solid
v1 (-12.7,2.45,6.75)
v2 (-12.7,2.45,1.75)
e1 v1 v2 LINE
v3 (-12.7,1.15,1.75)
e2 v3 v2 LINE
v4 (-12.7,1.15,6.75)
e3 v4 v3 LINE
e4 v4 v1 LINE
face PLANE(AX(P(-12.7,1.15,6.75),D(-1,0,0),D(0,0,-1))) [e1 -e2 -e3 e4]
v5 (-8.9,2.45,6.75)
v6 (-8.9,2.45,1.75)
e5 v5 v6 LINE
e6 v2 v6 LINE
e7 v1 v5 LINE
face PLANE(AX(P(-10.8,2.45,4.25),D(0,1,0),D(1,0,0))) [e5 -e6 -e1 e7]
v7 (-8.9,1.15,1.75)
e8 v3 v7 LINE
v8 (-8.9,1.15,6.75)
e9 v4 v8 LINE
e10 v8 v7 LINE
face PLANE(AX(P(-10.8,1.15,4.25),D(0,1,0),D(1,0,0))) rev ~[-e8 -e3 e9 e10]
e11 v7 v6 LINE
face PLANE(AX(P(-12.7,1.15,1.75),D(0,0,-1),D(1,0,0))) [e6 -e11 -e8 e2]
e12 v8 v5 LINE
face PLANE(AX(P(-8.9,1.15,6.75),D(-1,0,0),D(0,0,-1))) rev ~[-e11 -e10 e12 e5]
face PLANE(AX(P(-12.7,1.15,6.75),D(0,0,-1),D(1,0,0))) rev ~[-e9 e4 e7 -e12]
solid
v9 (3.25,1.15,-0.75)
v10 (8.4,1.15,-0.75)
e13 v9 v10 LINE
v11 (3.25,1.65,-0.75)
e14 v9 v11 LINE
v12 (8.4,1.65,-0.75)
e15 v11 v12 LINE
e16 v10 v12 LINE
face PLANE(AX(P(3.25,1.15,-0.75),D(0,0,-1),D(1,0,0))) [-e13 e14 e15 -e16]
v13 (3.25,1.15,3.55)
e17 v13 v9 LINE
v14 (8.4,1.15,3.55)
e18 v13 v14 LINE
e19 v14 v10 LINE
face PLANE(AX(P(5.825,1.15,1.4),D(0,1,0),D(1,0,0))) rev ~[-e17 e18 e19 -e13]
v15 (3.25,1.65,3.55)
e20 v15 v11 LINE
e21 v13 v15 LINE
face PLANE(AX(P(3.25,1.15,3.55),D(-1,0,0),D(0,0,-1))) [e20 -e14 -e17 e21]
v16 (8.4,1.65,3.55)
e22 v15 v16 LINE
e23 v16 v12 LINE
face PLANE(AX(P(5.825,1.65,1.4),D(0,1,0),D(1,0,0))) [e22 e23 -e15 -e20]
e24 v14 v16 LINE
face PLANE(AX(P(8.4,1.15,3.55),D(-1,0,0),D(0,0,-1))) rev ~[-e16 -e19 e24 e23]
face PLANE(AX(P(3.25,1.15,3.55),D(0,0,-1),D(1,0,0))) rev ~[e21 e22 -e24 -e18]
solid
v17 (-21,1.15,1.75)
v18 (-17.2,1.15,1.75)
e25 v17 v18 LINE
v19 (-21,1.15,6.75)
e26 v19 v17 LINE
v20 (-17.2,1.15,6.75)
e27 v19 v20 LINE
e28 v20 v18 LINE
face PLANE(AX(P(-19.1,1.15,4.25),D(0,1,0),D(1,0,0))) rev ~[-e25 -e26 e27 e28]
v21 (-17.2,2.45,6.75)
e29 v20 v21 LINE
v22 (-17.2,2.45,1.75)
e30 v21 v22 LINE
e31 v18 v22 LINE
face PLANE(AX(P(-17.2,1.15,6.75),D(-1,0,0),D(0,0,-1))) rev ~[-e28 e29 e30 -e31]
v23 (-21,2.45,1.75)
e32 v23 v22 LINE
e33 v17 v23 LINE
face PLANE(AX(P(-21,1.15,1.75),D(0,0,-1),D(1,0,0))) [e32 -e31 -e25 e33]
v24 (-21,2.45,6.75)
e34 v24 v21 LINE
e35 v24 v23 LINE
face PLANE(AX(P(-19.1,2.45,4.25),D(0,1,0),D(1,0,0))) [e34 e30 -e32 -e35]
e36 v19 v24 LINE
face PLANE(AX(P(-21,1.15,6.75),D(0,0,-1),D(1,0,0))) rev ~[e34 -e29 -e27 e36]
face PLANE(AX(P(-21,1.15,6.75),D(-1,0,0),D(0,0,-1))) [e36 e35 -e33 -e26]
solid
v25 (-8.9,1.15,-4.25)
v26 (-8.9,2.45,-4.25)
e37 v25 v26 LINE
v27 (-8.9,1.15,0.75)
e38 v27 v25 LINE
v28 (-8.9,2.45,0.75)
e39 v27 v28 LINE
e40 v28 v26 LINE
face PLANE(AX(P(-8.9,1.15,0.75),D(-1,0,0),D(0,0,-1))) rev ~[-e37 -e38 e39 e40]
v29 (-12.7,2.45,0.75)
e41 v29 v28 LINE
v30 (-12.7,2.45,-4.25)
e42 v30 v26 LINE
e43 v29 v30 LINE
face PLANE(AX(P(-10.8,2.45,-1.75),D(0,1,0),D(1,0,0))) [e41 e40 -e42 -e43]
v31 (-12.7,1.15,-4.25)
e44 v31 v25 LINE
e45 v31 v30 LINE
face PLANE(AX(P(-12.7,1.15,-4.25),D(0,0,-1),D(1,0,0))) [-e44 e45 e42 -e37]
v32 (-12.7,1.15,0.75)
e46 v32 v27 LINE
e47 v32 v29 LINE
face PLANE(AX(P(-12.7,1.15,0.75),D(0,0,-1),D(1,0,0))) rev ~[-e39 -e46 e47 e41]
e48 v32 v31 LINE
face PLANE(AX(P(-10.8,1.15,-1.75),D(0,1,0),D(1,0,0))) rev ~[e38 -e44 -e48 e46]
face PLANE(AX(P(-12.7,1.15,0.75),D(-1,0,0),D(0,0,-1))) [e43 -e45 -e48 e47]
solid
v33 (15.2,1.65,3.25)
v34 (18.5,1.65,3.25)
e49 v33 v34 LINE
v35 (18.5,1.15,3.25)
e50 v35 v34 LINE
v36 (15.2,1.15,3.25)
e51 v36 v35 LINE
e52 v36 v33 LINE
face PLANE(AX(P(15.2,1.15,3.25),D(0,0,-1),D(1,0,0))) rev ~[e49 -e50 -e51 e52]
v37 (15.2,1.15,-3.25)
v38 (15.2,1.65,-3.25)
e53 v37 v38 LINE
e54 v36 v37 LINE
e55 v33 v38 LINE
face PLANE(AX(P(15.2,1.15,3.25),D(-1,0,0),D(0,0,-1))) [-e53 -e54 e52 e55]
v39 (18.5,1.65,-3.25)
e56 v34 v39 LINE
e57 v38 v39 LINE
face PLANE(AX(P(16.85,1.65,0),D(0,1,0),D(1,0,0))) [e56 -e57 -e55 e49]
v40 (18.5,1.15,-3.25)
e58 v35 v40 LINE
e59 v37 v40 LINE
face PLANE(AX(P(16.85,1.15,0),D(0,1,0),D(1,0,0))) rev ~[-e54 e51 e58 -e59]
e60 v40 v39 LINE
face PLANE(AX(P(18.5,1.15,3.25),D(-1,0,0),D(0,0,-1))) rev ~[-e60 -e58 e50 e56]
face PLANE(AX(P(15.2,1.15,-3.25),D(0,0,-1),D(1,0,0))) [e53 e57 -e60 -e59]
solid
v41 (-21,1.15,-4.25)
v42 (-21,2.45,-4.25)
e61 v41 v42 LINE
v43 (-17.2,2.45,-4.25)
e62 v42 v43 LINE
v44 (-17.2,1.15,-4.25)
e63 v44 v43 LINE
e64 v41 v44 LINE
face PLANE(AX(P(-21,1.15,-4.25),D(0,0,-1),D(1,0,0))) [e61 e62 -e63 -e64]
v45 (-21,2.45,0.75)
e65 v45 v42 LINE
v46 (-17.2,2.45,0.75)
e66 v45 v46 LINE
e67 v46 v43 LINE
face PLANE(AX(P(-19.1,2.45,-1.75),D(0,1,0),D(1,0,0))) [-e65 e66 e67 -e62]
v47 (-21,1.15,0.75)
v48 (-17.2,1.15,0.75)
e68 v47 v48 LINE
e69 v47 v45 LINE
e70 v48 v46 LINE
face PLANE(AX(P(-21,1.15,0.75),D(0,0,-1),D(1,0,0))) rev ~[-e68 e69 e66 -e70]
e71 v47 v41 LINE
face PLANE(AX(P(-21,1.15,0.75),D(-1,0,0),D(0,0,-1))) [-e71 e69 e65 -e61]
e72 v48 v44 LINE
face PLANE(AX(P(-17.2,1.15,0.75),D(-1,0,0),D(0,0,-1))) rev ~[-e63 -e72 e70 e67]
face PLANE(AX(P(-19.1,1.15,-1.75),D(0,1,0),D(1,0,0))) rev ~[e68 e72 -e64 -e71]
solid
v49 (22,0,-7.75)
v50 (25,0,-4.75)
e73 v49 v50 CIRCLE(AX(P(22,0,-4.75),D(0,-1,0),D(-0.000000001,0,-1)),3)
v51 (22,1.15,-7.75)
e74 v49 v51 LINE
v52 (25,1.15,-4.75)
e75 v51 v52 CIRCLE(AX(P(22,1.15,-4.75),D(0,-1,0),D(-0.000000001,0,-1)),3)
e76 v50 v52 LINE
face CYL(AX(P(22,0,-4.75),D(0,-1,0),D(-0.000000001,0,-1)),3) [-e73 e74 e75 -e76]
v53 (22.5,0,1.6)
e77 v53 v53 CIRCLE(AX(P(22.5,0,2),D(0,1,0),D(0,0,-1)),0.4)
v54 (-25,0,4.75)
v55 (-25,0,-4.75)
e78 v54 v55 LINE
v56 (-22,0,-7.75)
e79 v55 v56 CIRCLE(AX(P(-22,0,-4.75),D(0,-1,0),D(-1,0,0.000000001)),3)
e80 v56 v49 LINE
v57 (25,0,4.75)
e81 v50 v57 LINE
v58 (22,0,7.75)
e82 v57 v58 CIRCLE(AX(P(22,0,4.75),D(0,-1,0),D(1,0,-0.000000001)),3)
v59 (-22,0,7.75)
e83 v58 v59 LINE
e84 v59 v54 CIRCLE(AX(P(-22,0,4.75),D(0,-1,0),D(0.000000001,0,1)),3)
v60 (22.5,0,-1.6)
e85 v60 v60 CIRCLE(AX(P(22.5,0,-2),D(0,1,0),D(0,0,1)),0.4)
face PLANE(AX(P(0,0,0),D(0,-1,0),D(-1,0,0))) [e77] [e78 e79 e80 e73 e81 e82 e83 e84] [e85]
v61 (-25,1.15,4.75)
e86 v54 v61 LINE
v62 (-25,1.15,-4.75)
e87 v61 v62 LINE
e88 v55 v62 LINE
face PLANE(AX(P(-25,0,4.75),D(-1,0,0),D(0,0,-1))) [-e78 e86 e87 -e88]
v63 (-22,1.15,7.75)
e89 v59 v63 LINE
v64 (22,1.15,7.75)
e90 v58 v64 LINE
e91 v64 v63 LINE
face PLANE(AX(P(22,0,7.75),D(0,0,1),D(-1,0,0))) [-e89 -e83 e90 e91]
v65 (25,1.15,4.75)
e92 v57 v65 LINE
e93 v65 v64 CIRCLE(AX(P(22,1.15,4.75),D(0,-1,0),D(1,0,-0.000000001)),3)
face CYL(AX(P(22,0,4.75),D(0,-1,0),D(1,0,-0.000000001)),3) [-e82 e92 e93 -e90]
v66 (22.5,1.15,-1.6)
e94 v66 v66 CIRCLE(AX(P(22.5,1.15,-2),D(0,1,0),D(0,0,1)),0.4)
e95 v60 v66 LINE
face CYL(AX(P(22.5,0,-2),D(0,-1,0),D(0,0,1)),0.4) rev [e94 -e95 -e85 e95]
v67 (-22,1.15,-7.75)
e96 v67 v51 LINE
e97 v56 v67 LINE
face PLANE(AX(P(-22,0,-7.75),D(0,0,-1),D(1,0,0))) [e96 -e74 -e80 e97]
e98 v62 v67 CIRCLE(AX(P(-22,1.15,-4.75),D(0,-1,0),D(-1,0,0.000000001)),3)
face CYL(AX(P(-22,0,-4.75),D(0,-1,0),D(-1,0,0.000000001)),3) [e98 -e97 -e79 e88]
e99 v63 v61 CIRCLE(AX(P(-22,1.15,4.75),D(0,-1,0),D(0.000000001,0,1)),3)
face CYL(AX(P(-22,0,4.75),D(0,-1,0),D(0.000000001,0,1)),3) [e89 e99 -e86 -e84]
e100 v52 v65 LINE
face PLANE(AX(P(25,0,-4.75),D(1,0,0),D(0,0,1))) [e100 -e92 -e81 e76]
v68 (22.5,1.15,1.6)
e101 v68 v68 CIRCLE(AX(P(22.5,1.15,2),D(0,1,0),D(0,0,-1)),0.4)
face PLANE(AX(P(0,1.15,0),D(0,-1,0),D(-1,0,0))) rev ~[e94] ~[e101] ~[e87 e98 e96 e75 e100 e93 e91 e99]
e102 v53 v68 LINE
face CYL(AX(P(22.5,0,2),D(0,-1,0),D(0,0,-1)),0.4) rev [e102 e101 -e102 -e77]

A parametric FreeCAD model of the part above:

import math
import FreeCAD as App
import Part
import Sketcher

V = App.Vector
Q = App.Units.Quantity


def add_polygon(sketch, points):
    """Adds a closed chain of lines whose ends are joined by coincident constraints."""
    first, n = sketch.GeometryCount, len(points)
    for a, b in zip(points, points[1:] + points[:1]):
        sketch.addGeometry(Part.LineSegment(App.Vector(*a, 0), App.Vector(*b, 0)), False)
    for i in range(n):
        sketch.addConstraint(Sketcher.Constraint("Coincident", first + i, 2, first + (i + 1) % n, 1))

doc = App.newDocument("Part")
params = doc.addObject("Spreadsheet::Sheet", "Params")
for row, (alias, value) in enumerate([
    ("sketch1_radius", "3 mm"),
    ("sketch1_diameter", "0.8 mm"),
    ("sketch1_width", "44 mm"),
    ("sketch1_height", "9.5 mm"),
    ("pad1_length", "1.15 mm"),
    ("sketch2_height", "5 mm"),
    ("sketch2_width", "3.8 mm"),
    ("pad2_length", "1.3 mm"),
    ("sketch3_height", "5 mm"),
    ("sketch3_width", "3.8 mm"),
    ("pad3_length", "1.3 mm"),
    ("sketch4_height", "5 mm"),
    ("sketch4_width", "3.8 mm"),
    ("pad4_length", "1.3 mm"),
    ("sketch5_height", "5 mm"),
    ("sketch5_width", "3.8 mm"),
    ("pad5_length", "1.3 mm"),
    ("sketch6_height", "4.3 mm"),
    ("sketch6_width", "5.15 mm"),
    ("pad6_length", "0.5 mm"),
    ("sketch7_width", "3.3 mm"),
    ("sketch7_height", "6.5 mm"),
    ("pad7_length", "0.5 mm"),
], start=1):
    params.set(f"A{row}", alias)
    params.set(f"B{row}", "=" + value)
    params.setAlias(f"B{row}", alias)

body = doc.addObject("PartDesign::Body", "Body")

sketch1 = body.newObject("Sketcher::SketchObject", "Sketch")
sketch1.AttachmentSupport = (doc.getObject("XZ_Plane"), [""])
sketch1.MapMode = "FlatFace"
sketch1.addGeometry([
    Part.LineSegment(V(22, -7.75, 0), V(-22, -7.75, 0)),
    Part.ArcOfCircle(Part.Circle(V(-22, -4.75, 0), V(0, 0, 1), 3), math.radians(180), math.radians(270)),
    Part.LineSegment(V(-25, -4.75, 0), V(-25, 4.75, 0)),
    Part.ArcOfCircle(Part.Circle(V(-22, 4.75, 0), V(0, 0, 1), 3), math.radians(90), math.radians(180)),
    Part.LineSegment(V(-22, 7.75, 0), V(22, 7.75, 0)),
    Part.ArcOfCircle(Part.Circle(V(22, 4.75, 0), V(0, 0, 1), 3), math.radians(0), math.radians(90)),
    Part.LineSegment(V(25, 4.75, 0), V(25, -4.75, 0)),
    Part.ArcOfCircle(Part.Circle(V(22, -4.75, 0), V(0, 0, 1), 3), math.radians(-90), math.radians(0)),
    Part.Circle(V(22.5, 2, 0), V(0, 0, 1), 0.4),
    Part.Circle(V(22.5, -2, 0), V(0, 0, 1), 0.4),
], False)
sketch1.addConstraint([
    Sketcher.Constraint("Tangent", 0, 2, 1, 2),
    Sketcher.Constraint("Tangent", 1, 1, 2, 1),
    Sketcher.Constraint("Tangent", 2, 2, 3, 2),
    Sketcher.Constraint("Tangent", 3, 1, 4, 1),
    Sketcher.Constraint("Tangent", 4, 2, 5, 2),
    Sketcher.Constraint("Tangent", 5, 1, 6, 1),
    Sketcher.Constraint("Tangent", 6, 2, 7, 2),
    Sketcher.Constraint("Tangent", 7, 1, 0, 1),
    Sketcher.Constraint("Horizontal", 0),
    Sketcher.Constraint("Vertical", 2),
    Sketcher.Constraint("Horizontal", 4),
    Sketcher.Constraint("Vertical", 6),
    Sketcher.Constraint("Equal", 1, 3),
    Sketcher.Constraint("Equal", 3, 5),
    Sketcher.Constraint("Equal", 5, 7),
    Sketcher.Constraint("Equal", 8, 9),
    Sketcher.Constraint("Symmetric", 1, 3, 5, 3, -1, 1),
    Sketcher.Constraint("Symmetric", 8, 3, 9, 3, -1),
    Sketcher.Constraint("Radius", 1, Q("3 mm")),
    Sketcher.Constraint("Diameter", 8, Q("0.8 mm")),
    Sketcher.Constraint("DistanceX", 0, 2, 0, 1, Q("44 mm")),
    Sketcher.Constraint("DistanceY", 2, 1, 2, 2, Q("9.5 mm")),
    Sketcher.Constraint("DistanceY", -1, 1, 8, 3, Q("2 mm")),
    Sketcher.Constraint("DistanceX", -1, 1, 8, 3, Q("22.5 mm")),
])
sketch1.setExpression("Constraints[18]", "Params.sketch1_radius")
sketch1.setExpression("Constraints[19]", "Params.sketch1_diameter")
sketch1.setExpression("Constraints[20]", "Params.sketch1_width")
sketch1.setExpression("Constraints[21]", "Params.sketch1_height")
pad1 = body.newObject("PartDesign::Pad", "Pad")
pad1.Profile = sketch1
pad1.setExpression("Length", "Params.pad1_length")
pad1.Reversed = True
body2 = doc.addObject("PartDesign::Body", "Body001")

sketch2 = body2.newObject("Sketcher::SketchObject", "Sketch001")
sketch2.AttachmentSupport = (doc.getObject("XZ_Plane001"), [""])
sketch2.MapMode = "FlatFace"
sketch2.AttachmentOffset = App.Placement(V(0, 0, -1.15), App.Rotation())
add_polygon(sketch2, [(-21, -4.25), (-21, 0.75), (-17.2, 0.75), (-17.2, -4.25)])
sketch2.addConstraint([
    Sketcher.Constraint("Vertical", 0),
    Sketcher.Constraint("Horizontal", 1),
    Sketcher.Constraint("Vertical", 2),
    Sketcher.Constraint("Horizontal", 3),
    Sketcher.Constraint("DistanceY", 0, 1, 0, 2, Q("5 mm")),
    Sketcher.Constraint("DistanceX", 1, 1, 1, 2, Q("3.8 mm")),
    Sketcher.Constraint("DistanceX", 0, 2, -1, 1, Q("21 mm")),
    Sketcher.Constraint("DistanceY", -1, 1, 0, 2, Q("0.75 mm")),
])
sketch2.setExpression("Constraints[8]", "Params.sketch2_height")
sketch2.setExpression("Constraints[9]", "Params.sketch2_width")
pad2 = body2.newObject("PartDesign::Pad", "Pad001")
pad2.Profile = sketch2
pad2.setExpression("Length", "Params.pad2_length")
pad2.Reversed = True
body3 = doc.addObject("PartDesign::Body", "Body002")

sketch3 = body3.newObject("Sketcher::SketchObject", "Sketch002")
sketch3.AttachmentSupport = (doc.getObject("XZ_Plane002"), [""])
sketch3.MapMode = "FlatFace"
sketch3.AttachmentOffset = App.Placement(V(0, 0, -1.15), App.Rotation())
add_polygon(sketch3, [(-12.7, -4.25), (-12.7, 0.75), (-8.9, 0.75), (-8.9, -4.25)])
sketch3.addConstraint([
    Sketcher.Constraint("Vertical", 0),
    Sketcher.Constraint("Horizontal", 1),
    Sketcher.Constraint("Vertical", 2),
    Sketcher.Constraint("Horizontal", 3),
    Sketcher.Constraint("DistanceY", 0, 1, 0, 2, Q("5 mm")),
    Sketcher.Constraint("DistanceX", 1, 1, 1, 2, Q("3.8 mm")),
    Sketcher.Constraint("DistanceX", 0, 2, -1, 1, Q("12.7 mm")),
    Sketcher.Constraint("DistanceY", -1, 1, 0, 2, Q("0.75 mm")),
])
sketch3.setExpression("Constraints[8]", "Params.sketch3_height")
sketch3.setExpression("Constraints[9]", "Params.sketch3_width")
pad3 = body3.newObject("PartDesign::Pad", "Pad002")
pad3.Profile = sketch3
pad3.setExpression("Length", "Params.pad3_length")
pad3.Reversed = True
body4 = doc.addObject("PartDesign::Body", "Body003")

sketch4 = body4.newObject("Sketcher::SketchObject", "Sketch003")
sketch4.AttachmentSupport = (doc.getObject("XZ_Plane003"), [""])
sketch4.MapMode = "FlatFace"
sketch4.AttachmentOffset = App.Placement(V(0, 0, -1.15), App.Rotation())
add_polygon(sketch4, [(-12.7, 1.75), (-12.7, 6.75), (-8.9, 6.75), (-8.9, 1.75)])
sketch4.addConstraint([
    Sketcher.Constraint("Vertical", 0),
    Sketcher.Constraint("Horizontal", 1),
    Sketcher.Constraint("Vertical", 2),
    Sketcher.Constraint("Horizontal", 3),
    Sketcher.Constraint("DistanceY", 0, 1, 0, 2, Q("5 mm")),
    Sketcher.Constraint("DistanceX", 1, 1, 1, 2, Q("3.8 mm")),
    Sketcher.Constraint("DistanceX", 0, 2, -1, 1, Q("12.7 mm")),
    Sketcher.Constraint("DistanceY", -1, 1, 0, 2, Q("6.75 mm")),
])
sketch4.setExpression("Constraints[8]", "Params.sketch4_height")
sketch4.setExpression("Constraints[9]", "Params.sketch4_width")
pad4 = body4.newObject("PartDesign::Pad", "Pad003")
pad4.Profile = sketch4
pad4.setExpression("Length", "Params.pad4_length")
pad4.Reversed = True
body5 = doc.addObject("PartDesign::Body", "Body004")

sketch5 = body5.newObject("Sketcher::SketchObject", "Sketch004")
sketch5.AttachmentSupport = (doc.getObject("XZ_Plane004"), [""])
sketch5.MapMode = "FlatFace"
sketch5.AttachmentOffset = App.Placement(V(0, 0, -1.15), App.Rotation())
add_polygon(sketch5, [(-21, 1.75), (-21, 6.75), (-17.2, 6.75), (-17.2, 1.75)])
sketch5.addConstraint([
    Sketcher.Constraint("Vertical", 0),
    Sketcher.Constraint("Horizontal", 1),
    Sketcher.Constraint("Vertical", 2),
    Sketcher.Constraint("Horizontal", 3),
    Sketcher.Constraint("DistanceY", 0, 1, 0, 2, Q("5 mm")),
    Sketcher.Constraint("DistanceX", 1, 1, 1, 2, Q("3.8 mm")),
    Sketcher.Constraint("DistanceX", 0, 2, -1, 1, Q("21 mm")),
    Sketcher.Constraint("DistanceY", -1, 1, 0, 2, Q("6.75 mm")),
])
sketch5.setExpression("Constraints[8]", "Params.sketch5_height")
sketch5.setExpression("Constraints[9]", "Params.sketch5_width")
pad5 = body5.newObject("PartDesign::Pad", "Pad004")
pad5.Profile = sketch5
pad5.setExpression("Length", "Params.pad5_length")
pad5.Reversed = True
body6 = doc.addObject("PartDesign::Body", "Body005")

sketch6 = body6.newObject("Sketcher::SketchObject", "Sketch005")
sketch6.AttachmentSupport = (doc.getObject("XZ_Plane005"), [""])
sketch6.MapMode = "FlatFace"
sketch6.AttachmentOffset = App.Placement(V(0, 0, -1.15), App.Rotation())
add_polygon(sketch6, [(3.25, -0.75), (3.25, 3.55), (8.4, 3.55), (8.4, -0.75)])
sketch6.addConstraint([
    Sketcher.Constraint("Vertical", 0),
    Sketcher.Constraint("Horizontal", 1),
    Sketcher.Constraint("Vertical", 2),
    Sketcher.Constraint("Horizontal", 3),
    Sketcher.Constraint("DistanceY", 0, 1, 0, 2, Q("4.3 mm")),
    Sketcher.Constraint("DistanceX", 1, 1, 1, 2, Q("5.15 mm")),
    Sketcher.Constraint("DistanceX", -1, 1, 1, 2, Q("8.4 mm")),
    Sketcher.Constraint("DistanceY", -1, 1, 0, 2, Q("3.55 mm")),
])
sketch6.setExpression("Constraints[8]", "Params.sketch6_height")
sketch6.setExpression("Constraints[9]", "Params.sketch6_width")
pad6 = body6.newObject("PartDesign::Pad", "Pad005")
pad6.Profile = sketch6
pad6.setExpression("Length", "Params.pad6_length")
pad6.Reversed = True
body7 = doc.addObject("PartDesign::Body", "Body006")

sketch7 = body7.newObject("Sketcher::SketchObject", "Sketch006")
sketch7.AttachmentSupport = (doc.getObject("XZ_Plane006"), [""])
sketch7.MapMode = "FlatFace"
sketch7.AttachmentOffset = App.Placement(V(0, 0, -1.15), App.Rotation())
add_polygon(sketch7, [(15.2, -3.25), (15.2, 3.25), (18.5, 3.25), (18.5, -3.25)])
sketch7.addConstraint([
    Sketcher.Constraint("Vertical", 0),
    Sketcher.Constraint("Horizontal", 1),
    Sketcher.Constraint("Vertical", 2),
    Sketcher.Constraint("Horizontal", 3),
    Sketcher.Constraint("DistanceX", 1, 1, 1, 2, Q("3.3 mm")),
    Sketcher.Constraint("DistanceY", 0, 1, 0, 2, Q("6.5 mm")),
    Sketcher.Constraint("DistanceX", -1, 1, 0, 2, Q("15.2 mm")),
    Sketcher.Constraint("DistanceY", -1, 1, 0, 2, Q("3.25 mm")),
])
sketch7.setExpression("Constraints[8]", "Params.sketch7_width")
sketch7.setExpression("Constraints[9]", "Params.sketch7_height")
pad7 = body7.newObject("PartDesign::Pad", "Pad006")
pad7.Profile = sketch7
pad7.setExpression("Length", "Params.pad7_length")
pad7.Reversed = True

doc.recompute()
